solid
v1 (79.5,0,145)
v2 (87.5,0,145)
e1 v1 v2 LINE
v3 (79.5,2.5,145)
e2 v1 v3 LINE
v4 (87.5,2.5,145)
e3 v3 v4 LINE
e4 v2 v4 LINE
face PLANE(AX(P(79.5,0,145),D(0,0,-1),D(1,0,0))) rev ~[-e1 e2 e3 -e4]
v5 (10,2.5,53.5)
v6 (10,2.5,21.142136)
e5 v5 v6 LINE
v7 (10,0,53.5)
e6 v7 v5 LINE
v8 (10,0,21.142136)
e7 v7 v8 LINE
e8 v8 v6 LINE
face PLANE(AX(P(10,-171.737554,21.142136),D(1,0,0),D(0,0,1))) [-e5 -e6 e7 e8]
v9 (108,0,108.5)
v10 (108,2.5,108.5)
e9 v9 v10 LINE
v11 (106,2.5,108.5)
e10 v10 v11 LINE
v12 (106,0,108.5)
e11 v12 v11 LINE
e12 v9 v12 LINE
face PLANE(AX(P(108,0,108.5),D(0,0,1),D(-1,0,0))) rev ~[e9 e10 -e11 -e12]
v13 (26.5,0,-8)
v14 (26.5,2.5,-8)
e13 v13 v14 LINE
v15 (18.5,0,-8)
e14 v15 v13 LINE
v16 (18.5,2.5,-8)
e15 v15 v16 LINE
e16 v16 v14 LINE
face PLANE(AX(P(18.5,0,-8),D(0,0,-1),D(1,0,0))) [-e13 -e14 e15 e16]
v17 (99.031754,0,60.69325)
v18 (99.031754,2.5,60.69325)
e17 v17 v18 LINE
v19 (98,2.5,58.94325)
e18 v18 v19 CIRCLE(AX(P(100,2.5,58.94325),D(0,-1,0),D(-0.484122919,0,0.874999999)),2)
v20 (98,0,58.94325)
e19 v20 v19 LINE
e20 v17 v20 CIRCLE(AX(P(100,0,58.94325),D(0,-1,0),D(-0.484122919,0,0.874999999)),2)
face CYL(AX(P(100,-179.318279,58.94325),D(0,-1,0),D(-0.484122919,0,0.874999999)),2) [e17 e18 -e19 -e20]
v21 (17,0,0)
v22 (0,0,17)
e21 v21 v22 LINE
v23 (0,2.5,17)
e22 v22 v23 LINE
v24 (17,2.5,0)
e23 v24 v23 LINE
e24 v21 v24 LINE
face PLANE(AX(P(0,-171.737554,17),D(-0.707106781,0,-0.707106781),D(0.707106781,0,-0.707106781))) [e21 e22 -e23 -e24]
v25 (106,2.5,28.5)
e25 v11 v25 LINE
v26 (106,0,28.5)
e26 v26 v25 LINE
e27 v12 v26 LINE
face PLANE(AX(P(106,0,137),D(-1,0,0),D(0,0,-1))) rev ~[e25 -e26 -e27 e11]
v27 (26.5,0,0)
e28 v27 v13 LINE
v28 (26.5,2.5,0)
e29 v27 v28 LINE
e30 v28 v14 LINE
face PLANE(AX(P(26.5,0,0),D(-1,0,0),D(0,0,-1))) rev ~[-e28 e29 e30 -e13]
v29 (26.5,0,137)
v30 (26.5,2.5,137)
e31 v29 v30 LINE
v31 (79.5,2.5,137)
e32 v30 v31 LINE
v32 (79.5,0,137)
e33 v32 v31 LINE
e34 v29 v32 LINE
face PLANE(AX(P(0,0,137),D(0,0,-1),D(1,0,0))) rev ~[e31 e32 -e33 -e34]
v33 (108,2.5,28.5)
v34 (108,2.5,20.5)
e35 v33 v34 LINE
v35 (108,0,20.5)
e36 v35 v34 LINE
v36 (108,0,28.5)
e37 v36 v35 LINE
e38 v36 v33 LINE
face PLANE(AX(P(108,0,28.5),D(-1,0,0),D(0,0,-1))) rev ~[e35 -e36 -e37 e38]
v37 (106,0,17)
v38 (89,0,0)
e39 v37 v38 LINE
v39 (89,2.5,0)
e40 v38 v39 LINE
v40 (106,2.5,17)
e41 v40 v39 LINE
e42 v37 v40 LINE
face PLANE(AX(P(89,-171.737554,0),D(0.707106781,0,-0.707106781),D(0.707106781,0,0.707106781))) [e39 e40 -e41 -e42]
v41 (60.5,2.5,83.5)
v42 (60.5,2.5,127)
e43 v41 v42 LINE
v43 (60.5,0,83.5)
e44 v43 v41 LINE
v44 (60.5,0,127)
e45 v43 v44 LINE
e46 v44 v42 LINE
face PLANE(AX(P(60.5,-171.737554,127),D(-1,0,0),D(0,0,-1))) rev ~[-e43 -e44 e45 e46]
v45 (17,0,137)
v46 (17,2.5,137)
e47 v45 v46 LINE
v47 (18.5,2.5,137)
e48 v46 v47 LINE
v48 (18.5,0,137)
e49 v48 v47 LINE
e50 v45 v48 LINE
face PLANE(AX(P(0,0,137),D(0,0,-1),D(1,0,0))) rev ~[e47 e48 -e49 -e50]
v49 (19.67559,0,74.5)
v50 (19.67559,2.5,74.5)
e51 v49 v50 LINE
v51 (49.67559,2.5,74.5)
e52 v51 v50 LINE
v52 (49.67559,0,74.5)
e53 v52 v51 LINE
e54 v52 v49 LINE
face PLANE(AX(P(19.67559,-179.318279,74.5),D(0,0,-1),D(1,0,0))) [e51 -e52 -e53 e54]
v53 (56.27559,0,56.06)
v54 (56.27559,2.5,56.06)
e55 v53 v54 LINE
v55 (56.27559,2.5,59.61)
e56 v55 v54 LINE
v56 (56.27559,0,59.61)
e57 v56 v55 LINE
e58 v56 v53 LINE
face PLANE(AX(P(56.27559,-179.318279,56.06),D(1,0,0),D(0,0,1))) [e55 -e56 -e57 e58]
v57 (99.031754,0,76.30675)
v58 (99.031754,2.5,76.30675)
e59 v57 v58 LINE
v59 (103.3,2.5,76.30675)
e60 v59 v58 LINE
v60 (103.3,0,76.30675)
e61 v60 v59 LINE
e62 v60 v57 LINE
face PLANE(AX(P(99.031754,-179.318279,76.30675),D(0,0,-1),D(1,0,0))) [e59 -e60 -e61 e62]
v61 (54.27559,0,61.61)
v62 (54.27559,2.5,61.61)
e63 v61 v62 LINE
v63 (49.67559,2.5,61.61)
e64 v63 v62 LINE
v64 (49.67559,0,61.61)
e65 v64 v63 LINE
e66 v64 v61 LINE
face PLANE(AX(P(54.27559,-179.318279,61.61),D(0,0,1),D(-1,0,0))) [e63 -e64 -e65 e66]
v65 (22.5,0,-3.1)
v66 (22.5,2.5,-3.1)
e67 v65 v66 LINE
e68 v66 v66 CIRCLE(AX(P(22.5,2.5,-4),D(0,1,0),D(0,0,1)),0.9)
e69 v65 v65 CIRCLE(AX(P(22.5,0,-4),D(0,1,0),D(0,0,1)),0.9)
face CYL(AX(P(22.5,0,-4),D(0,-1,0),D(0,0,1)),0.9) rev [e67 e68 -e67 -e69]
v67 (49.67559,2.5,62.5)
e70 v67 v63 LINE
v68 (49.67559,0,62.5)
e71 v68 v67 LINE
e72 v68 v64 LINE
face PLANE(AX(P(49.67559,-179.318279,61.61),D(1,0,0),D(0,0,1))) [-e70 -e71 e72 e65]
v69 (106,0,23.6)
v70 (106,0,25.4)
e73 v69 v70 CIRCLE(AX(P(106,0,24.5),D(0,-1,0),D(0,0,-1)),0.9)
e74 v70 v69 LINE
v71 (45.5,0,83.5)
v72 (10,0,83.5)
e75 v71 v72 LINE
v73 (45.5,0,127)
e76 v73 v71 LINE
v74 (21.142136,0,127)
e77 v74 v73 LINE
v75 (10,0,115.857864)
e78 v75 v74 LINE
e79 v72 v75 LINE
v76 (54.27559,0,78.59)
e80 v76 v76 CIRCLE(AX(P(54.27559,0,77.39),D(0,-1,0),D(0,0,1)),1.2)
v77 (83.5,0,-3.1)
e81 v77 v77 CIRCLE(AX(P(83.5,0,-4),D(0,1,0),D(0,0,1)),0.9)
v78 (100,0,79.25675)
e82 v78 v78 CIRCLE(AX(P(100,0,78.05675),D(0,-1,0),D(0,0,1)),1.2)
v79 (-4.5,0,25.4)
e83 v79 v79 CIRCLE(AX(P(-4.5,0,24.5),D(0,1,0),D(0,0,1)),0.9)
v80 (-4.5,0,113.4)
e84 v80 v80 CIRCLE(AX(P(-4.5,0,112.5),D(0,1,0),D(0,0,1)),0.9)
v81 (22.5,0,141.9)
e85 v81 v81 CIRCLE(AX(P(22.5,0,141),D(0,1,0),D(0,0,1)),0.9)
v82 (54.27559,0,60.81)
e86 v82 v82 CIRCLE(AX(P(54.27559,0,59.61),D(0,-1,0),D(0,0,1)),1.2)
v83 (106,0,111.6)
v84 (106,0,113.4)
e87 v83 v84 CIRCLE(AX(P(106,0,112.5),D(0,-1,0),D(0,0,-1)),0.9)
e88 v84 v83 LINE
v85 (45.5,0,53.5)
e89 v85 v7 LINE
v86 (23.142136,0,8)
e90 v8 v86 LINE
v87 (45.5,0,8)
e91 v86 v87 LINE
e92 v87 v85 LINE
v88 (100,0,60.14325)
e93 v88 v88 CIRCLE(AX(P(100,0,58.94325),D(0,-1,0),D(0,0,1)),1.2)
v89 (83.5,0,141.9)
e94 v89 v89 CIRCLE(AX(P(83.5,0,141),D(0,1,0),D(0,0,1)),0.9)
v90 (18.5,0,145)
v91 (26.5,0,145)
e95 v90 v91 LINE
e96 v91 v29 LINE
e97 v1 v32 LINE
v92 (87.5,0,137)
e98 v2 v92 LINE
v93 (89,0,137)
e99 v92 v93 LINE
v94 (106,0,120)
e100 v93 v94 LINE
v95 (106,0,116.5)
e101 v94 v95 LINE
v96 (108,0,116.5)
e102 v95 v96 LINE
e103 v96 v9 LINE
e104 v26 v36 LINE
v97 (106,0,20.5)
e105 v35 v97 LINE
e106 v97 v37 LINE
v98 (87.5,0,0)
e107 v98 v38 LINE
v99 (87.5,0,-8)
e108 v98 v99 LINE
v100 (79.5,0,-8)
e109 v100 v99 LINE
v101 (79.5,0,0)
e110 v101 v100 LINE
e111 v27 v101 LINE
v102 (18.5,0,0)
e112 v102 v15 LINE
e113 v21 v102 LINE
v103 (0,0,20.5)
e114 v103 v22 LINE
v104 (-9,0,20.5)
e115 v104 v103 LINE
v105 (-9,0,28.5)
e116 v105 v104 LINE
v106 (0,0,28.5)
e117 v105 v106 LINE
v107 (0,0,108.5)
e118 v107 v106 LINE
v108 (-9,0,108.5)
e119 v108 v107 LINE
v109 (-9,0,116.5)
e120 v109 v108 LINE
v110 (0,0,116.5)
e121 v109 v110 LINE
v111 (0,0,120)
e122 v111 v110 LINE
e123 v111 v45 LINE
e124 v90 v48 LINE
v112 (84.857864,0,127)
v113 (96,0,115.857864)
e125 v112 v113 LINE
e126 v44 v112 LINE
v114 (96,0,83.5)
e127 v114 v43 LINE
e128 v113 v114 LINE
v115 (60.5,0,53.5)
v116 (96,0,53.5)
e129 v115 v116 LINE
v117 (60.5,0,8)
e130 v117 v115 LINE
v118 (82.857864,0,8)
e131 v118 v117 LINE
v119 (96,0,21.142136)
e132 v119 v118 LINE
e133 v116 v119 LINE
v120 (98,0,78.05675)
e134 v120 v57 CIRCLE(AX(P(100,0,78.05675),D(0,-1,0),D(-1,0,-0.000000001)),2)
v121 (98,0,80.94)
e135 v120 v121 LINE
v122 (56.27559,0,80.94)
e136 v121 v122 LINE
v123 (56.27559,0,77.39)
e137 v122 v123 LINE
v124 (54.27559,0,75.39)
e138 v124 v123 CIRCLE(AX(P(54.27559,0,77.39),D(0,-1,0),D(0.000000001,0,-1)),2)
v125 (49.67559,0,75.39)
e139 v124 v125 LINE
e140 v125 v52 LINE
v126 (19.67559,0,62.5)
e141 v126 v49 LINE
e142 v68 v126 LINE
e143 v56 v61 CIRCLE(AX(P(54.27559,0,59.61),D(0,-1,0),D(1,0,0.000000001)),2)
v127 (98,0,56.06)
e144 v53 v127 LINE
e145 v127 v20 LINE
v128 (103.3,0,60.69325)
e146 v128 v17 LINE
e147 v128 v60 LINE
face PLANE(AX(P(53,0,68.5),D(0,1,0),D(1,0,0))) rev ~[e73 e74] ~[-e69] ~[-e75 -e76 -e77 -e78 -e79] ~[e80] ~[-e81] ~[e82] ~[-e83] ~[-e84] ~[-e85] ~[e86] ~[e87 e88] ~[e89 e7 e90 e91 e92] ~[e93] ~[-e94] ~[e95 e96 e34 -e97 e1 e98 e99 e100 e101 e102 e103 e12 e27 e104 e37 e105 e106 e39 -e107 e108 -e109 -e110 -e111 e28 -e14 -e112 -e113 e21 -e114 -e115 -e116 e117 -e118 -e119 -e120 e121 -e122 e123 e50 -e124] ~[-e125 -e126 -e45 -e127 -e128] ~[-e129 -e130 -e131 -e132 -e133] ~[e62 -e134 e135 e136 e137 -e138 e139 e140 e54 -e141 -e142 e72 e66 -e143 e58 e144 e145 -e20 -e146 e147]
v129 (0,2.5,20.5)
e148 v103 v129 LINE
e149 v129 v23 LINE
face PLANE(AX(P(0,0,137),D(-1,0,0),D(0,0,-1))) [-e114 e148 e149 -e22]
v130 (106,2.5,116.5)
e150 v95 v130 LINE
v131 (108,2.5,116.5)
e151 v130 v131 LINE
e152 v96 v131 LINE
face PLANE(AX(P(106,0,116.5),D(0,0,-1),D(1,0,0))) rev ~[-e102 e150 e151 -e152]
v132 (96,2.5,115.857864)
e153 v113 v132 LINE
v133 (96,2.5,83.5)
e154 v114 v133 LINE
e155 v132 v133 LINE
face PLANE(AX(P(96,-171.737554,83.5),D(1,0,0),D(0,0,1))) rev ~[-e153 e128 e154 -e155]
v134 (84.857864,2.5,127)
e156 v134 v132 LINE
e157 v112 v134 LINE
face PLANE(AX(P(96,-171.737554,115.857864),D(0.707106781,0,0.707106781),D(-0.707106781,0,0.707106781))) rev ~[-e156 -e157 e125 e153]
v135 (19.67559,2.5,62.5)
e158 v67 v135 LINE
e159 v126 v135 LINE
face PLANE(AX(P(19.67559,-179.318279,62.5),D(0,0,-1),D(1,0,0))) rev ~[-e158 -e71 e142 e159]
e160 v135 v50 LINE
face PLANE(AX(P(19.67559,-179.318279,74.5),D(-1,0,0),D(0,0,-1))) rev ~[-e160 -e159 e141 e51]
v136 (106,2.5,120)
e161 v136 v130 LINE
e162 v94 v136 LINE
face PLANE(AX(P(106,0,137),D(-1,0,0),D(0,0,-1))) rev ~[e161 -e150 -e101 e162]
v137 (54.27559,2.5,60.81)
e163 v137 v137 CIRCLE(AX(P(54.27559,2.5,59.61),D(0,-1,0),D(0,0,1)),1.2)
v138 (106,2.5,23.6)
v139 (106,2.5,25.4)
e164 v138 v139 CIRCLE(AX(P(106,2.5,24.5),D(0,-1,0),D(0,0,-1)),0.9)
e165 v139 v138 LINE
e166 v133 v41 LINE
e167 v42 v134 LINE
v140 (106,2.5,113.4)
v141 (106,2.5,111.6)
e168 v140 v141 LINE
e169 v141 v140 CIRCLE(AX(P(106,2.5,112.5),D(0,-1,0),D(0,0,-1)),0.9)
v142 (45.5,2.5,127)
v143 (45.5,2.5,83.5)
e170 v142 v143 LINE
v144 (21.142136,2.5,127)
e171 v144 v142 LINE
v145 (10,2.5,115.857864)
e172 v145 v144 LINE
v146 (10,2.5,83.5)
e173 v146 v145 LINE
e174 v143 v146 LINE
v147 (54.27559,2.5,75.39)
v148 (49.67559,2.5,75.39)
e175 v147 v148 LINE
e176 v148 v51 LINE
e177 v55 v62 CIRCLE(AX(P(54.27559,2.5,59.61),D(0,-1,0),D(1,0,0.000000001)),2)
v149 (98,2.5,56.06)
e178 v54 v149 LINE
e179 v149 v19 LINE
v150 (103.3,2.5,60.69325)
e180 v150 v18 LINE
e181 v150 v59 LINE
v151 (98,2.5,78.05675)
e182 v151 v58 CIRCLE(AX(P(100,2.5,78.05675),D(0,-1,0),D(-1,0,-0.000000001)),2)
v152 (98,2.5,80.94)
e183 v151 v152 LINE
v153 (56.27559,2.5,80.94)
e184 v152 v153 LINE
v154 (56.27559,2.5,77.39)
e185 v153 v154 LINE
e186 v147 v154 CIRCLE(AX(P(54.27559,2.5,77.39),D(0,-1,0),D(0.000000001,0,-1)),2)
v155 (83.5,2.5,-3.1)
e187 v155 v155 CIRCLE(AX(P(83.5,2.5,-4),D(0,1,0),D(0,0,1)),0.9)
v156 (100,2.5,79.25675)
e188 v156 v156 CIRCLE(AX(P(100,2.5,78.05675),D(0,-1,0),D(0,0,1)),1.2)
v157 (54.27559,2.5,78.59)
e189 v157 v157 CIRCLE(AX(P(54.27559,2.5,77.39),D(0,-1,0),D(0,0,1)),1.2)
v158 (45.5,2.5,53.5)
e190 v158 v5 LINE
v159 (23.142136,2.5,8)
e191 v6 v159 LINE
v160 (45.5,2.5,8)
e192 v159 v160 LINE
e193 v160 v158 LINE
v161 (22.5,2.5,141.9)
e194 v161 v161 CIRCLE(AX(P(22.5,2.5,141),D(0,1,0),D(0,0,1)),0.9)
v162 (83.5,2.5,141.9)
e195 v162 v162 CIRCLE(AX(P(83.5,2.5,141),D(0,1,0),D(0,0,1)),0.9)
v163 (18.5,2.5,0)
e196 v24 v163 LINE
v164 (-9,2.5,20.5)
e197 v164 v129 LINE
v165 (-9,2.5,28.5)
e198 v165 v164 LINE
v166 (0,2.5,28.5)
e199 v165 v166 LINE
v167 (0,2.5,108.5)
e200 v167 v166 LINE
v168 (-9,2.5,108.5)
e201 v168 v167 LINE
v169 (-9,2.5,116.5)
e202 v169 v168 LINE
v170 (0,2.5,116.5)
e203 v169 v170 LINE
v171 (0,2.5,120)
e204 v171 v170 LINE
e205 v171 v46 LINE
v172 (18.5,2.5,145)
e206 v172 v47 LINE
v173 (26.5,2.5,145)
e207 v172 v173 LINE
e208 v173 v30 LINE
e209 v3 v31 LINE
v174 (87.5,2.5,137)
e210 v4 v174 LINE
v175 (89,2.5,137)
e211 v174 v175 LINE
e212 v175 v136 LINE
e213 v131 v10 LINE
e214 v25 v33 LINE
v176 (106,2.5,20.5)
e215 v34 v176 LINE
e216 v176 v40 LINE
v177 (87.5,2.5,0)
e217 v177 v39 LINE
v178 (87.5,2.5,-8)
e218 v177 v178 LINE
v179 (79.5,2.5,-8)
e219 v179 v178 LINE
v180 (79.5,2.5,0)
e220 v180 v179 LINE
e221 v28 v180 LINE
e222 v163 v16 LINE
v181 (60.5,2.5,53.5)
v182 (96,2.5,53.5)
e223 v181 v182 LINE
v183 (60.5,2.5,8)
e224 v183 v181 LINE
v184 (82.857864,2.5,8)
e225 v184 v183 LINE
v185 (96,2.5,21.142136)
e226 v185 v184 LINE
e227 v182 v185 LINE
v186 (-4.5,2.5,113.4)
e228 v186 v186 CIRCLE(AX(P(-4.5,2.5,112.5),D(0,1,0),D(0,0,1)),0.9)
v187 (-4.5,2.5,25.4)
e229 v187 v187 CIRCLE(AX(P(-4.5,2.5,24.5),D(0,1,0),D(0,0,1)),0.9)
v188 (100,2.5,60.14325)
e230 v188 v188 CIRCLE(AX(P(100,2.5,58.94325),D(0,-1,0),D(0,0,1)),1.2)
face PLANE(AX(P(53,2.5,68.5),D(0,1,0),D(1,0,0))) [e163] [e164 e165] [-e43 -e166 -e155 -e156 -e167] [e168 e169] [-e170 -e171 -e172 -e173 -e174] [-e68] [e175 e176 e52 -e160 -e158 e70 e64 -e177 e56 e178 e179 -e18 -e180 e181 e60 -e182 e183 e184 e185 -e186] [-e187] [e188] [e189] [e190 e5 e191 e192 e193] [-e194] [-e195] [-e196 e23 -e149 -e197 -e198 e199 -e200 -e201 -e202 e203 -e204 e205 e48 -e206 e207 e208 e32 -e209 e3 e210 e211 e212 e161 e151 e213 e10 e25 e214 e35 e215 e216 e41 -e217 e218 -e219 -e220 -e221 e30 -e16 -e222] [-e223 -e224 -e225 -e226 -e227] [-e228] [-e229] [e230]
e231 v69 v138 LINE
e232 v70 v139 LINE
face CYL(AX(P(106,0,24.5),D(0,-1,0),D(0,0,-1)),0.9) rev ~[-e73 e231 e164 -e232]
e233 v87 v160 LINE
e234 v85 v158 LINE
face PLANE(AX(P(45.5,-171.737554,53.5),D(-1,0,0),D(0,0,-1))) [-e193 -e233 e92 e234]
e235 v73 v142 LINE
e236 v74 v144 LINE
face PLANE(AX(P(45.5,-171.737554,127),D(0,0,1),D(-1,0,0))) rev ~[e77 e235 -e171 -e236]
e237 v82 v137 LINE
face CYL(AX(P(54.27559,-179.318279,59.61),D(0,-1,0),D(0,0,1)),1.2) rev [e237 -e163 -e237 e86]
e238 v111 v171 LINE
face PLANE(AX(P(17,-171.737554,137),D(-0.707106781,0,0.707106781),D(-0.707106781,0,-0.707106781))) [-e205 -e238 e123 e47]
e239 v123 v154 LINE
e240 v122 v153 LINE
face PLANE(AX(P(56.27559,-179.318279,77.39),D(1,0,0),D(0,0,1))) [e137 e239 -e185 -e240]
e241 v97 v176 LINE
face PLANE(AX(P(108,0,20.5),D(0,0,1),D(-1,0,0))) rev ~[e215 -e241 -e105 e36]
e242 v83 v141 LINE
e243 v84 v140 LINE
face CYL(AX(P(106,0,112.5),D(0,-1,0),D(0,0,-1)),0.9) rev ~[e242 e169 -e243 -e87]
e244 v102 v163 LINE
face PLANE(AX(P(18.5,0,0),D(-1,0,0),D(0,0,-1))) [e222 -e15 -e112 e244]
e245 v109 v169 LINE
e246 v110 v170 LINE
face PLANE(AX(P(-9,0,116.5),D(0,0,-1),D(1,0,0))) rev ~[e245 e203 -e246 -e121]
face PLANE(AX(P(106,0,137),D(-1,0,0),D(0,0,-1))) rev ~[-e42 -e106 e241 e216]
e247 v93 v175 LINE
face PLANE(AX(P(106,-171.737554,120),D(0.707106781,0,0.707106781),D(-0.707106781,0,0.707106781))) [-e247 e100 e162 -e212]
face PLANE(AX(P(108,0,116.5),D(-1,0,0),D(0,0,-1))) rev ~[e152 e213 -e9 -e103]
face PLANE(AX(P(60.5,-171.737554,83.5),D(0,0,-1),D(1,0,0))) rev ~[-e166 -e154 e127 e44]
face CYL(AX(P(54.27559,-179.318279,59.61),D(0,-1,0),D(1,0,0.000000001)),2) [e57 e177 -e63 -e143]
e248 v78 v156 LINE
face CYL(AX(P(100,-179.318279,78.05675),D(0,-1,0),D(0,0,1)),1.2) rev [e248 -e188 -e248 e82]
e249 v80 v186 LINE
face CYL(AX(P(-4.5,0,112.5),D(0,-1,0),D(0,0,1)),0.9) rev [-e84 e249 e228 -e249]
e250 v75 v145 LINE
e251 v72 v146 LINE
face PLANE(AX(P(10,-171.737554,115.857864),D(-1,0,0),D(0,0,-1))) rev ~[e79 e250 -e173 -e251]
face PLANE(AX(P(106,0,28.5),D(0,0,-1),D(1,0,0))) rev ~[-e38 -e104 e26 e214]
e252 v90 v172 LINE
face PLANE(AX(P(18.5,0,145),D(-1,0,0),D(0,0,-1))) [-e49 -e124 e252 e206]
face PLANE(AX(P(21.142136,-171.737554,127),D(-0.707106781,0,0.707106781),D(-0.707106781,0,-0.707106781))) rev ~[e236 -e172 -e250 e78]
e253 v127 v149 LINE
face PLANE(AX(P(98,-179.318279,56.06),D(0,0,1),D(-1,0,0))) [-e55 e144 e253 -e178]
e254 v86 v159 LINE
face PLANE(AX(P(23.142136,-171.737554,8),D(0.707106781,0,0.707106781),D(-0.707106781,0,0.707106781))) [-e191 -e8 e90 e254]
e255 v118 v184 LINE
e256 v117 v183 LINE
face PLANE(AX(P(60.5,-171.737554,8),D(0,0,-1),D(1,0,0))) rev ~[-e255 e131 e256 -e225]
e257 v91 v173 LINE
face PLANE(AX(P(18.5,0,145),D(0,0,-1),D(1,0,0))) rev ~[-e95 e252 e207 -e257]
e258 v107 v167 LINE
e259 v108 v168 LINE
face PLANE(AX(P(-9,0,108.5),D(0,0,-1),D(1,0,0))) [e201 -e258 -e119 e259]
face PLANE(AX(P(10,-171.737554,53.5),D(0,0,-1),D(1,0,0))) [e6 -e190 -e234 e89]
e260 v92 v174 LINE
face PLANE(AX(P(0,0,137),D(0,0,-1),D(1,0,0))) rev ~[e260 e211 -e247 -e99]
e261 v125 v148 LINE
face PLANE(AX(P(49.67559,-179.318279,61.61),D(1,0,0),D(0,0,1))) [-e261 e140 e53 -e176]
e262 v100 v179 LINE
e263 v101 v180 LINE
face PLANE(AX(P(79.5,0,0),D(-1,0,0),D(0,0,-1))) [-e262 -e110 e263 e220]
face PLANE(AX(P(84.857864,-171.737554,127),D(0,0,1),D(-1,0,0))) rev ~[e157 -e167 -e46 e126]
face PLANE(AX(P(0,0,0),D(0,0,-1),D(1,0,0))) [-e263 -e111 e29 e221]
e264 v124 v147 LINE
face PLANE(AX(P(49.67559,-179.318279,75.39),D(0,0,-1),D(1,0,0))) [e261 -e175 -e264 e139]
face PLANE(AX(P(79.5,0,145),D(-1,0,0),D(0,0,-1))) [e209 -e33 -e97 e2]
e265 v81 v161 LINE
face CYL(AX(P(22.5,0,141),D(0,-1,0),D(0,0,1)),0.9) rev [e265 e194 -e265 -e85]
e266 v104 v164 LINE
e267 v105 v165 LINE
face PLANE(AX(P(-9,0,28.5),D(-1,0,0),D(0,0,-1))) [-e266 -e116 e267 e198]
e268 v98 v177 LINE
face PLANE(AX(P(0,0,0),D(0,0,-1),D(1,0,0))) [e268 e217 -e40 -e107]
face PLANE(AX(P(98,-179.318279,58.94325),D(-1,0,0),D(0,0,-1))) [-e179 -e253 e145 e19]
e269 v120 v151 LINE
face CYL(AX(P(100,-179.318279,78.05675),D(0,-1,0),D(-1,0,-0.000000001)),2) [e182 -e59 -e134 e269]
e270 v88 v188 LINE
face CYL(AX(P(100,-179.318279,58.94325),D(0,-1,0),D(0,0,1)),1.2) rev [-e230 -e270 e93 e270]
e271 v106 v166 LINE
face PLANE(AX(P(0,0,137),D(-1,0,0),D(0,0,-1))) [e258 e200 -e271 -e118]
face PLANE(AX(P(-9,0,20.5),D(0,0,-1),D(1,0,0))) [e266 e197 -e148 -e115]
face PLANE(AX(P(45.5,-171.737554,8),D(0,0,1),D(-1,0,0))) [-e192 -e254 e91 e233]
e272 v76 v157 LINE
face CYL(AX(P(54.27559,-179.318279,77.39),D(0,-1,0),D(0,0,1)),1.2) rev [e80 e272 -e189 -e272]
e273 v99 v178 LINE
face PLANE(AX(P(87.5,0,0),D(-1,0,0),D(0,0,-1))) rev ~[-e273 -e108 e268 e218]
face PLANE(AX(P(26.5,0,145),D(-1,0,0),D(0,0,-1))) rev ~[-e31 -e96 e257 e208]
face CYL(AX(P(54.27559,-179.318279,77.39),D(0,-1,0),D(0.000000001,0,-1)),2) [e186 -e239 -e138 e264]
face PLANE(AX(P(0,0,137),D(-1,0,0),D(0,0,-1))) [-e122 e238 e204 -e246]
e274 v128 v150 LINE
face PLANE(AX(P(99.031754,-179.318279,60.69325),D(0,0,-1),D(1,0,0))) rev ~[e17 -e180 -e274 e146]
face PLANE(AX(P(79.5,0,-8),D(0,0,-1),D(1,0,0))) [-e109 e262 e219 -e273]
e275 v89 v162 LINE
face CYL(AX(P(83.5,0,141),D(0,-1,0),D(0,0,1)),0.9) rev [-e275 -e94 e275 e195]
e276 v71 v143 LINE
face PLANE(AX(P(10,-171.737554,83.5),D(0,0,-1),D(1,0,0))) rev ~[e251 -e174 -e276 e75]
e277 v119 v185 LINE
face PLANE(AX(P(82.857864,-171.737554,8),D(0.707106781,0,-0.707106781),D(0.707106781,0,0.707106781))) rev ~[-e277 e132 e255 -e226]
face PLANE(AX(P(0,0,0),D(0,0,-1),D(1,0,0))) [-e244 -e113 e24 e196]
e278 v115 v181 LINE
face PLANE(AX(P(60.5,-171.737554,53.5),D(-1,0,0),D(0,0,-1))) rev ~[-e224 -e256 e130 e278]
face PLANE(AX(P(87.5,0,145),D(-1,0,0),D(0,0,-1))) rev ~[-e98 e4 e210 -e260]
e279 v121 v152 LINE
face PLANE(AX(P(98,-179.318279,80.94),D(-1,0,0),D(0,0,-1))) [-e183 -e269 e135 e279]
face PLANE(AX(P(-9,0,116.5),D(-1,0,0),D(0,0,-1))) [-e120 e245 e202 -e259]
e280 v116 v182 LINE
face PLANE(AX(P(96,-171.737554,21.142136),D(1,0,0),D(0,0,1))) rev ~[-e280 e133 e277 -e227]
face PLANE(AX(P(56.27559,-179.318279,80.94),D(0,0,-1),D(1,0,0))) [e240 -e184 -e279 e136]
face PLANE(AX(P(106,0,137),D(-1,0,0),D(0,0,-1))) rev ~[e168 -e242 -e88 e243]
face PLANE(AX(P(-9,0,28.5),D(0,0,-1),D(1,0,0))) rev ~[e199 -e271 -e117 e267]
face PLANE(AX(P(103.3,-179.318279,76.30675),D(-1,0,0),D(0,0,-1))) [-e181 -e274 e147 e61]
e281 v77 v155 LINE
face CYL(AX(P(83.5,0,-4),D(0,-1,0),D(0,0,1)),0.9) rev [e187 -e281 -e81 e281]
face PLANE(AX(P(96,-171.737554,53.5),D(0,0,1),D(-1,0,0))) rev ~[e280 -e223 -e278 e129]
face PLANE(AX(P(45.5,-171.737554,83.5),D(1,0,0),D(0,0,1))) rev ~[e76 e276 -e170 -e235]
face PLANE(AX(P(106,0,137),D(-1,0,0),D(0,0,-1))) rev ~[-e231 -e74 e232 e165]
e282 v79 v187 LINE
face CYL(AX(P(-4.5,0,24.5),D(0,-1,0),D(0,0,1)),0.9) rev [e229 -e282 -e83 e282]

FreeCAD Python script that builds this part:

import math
import FreeCAD as App
import Part
import Sketcher

V = App.Vector
Q = App.Units.Quantity


def add_polygon(sketch, points):
    """Adds a closed chain of lines whose ends are joined by coincident constraints."""
    first, n = sketch.GeometryCount, len(points)
    for a, b in zip(points, points[1:] + points[:1]):
        sketch.addGeometry(Part.LineSegment(App.Vector(*a, 0), App.Vector(*b, 0)), False)
    for i in range(n):
        sketch.addConstraint(Sketcher.Constraint("Coincident", first + i, 2, first + (i + 1) % n, 1))

doc = App.newDocument("Part")
body = doc.addObject("PartDesign::Body", "Body")

# Sketch on XZ plane
sketch1 = body.newObject("Sketcher::SketchObject", "Sketch")
sketch1.AttachmentSupport = (doc.getObject("XZ_Plane"), [""])
sketch1.MapMode = "FlatFace"
add_polygon(sketch1, [(0, 0), (0, 137), (106, 137), (106, 0)])  # lines 0-3
sketch1.addConstraint(Sketcher.Constraint("Vertical", 0))
sketch1.addConstraint(Sketcher.Constraint("Horizontal", 1))
sketch1.addConstraint(Sketcher.Constraint("Vertical", 2))
sketch1.addConstraint(Sketcher.Constraint("Horizontal", 3))
sketch1.addConstraint(Sketcher.Constraint("Coincident", 3, 2, -1, 1))
sketch1.addConstraint(Sketcher.Constraint("DistanceX", 1, 1, 1, 2, Q("106 mm")))
sketch1.addConstraint(Sketcher.Constraint("DistanceY", 0, 1, 0, 2, Q("137 mm")))
pad1 = body.newObject("PartDesign::Pad", "Pad")
pad1.Profile = sketch1
pad1.Length = 2.5
pad1.Reversed = True

# Sketch on XZ plane
sketch2 = body.newObject("Sketcher::SketchObject", "Sketch001")
sketch2.AttachmentSupport = (doc.getObject("XZ_Plane"), [""])
sketch2.MapMode = "FlatFace"
sketch2.AttachmentOffset = App.Placement(V(0, 0, -2.5), App.Rotation())
add_polygon(sketch2, [(96, 84), (60, 84), (60, 127), (85, 127), (96, 116)])  # lines 0-4
add_polygon(sketch2, [(106, 120), (89, 137), (106, 137)])  # lines 5-7
add_polygon(sketch2, [(17, 137), (0, 120), (0, 137)])  # lines 8-10
add_polygon(sketch2, [(21, 127), (46, 127), (46, 84), (10, 84), (10, 116)])  # lines 11-15
add_polygon(sketch2, [(10, 54), (46, 54), (46, 8), (23, 8), (10, 21)])  # lines 16-20
add_polygon(sketch2, [(60, 8), (60, 54), (96, 54), (96, 21), (83, 8)])  # lines 21-25
add_polygon(sketch2, [(106, 0), (89, 0), (106, 17)])  # lines 26-28
add_polygon(sketch2, [(0, 0), (0, 17), (17, 0)])  # lines 29-31
sketch2.addConstraint(Sketcher.Constraint("Horizontal", 0))
sketch2.addConstraint(Sketcher.Constraint("Vertical", 1))
sketch2.addConstraint(Sketcher.Constraint("Horizontal", 2))
sketch2.addConstraint(Sketcher.Constraint("Vertical", 4))
sketch2.addConstraint(Sketcher.Constraint("Horizontal", 6))
sketch2.addConstraint(Sketcher.Constraint("Vertical", 7))
sketch2.addConstraint(Sketcher.Constraint("Vertical", 9))
sketch2.addConstraint(Sketcher.Constraint("Horizontal", 10))
sketch2.addConstraint(Sketcher.Constraint("Horizontal", 11))
sketch2.addConstraint(Sketcher.Constraint("Vertical", 12))
sketch2.addConstraint(Sketcher.Constraint("Horizontal", 13))
sketch2.addConstraint(Sketcher.Constraint("Vertical", 14))
sketch2.addConstraint(Sketcher.Constraint("Horizontal", 16))
sketch2.addConstraint(Sketcher.Constraint("Vertical", 17))
sketch2.addConstraint(Sketcher.Constraint("Horizontal", 18))
sketch2.addConstraint(Sketcher.Constraint("Vertical", 20))
sketch2.addConstraint(Sketcher.Constraint("Vertical", 21))
sketch2.addConstraint(Sketcher.Constraint("Horizontal", 22))
sketch2.addConstraint(Sketcher.Constraint("Vertical", 23))
sketch2.addConstraint(Sketcher.Constraint("Horizontal", 25))
sketch2.addConstraint(Sketcher.Constraint("Horizontal", 26))
sketch2.addConstraint(Sketcher.Constraint("Vertical", 28))
sketch2.addConstraint(Sketcher.Constraint("Vertical", 29))
sketch2.addConstraint(Sketcher.Constraint("Horizontal", 31))
sketch2.addConstraint(Sketcher.Constraint("Coincident", 31, 2, -1, 1))
sketch2.addConstraint(Sketcher.Constraint("PointOnObject", 8, 2, -2))
sketch2.addConstraint(Sketcher.Constraint("PointOnObject", 26, 2, -1))
sketch2.addConstraint(Sketcher.Constraint("Parallel", 3, 5))
sketch2.addConstraint(Sketcher.Constraint("Perpendicular", 5, 8))
sketch2.addConstraint(Sketcher.Constraint("Parallel", 8, 15))
sketch2.addConstraint(Sketcher.Constraint("Perpendicular", 15, 19))
sketch2.addConstraint(Sketcher.Constraint("Perpendicular", 19, 24))
sketch2.addConstraint(Sketcher.Constraint("Parallel", 24, 27))
sketch2.addConstraint(Sketcher.Constraint("Perpendicular", 27, 30))
sketch2.addConstraint(Sketcher.Constraint("Horizontal", 7, 2, 8, 2))
sketch2.addConstraint(Sketcher.Constraint("Horizontal", 6, 2, 9, 2))
sketch2.addConstraint(Sketcher.Constraint("Horizontal", 2, 2, 11, 2))
sketch2.addConstraint(Sketcher.Constraint("Horizontal", 4, 2, 12, 2))
sketch2.addConstraint(Sketcher.Constraint("Horizontal", 3, 2, 14, 2))
sketch2.addConstraint(Sketcher.Constraint("Horizontal", 20, 2, 21, 2))
sketch2.addConstraint(Sketcher.Constraint("Horizontal", 19, 2, 23, 2))
sketch2.addConstraint(Sketcher.Constraint("Horizontal", 18, 2, 24, 2))
sketch2.addConstraint(Sketcher.Constraint("Horizontal", 27, 2, 29, 2))
sketch2.addConstraint(Sketcher.Constraint("Vertical", 12, 2, 16, 2))
sketch2.addConstraint(Sketcher.Constraint("Vertical", 14, 2, 19, 2))
sketch2.addConstraint(Sketcher.Constraint("Vertical", 1, 2, 21, 2))
sketch2.addConstraint(Sketcher.Constraint("Vertical", 4, 2, 22, 2))
sketch2.addConstraint(Sketcher.Constraint("Vertical", 5, 2, 26, 2))
sketch2.addConstraint(Sketcher.Constraint("Vertical", 7, 2, 27, 2))
sketch2.addConstraint(Sketcher.Constraint("Vertical", 10, 2, 30, 2))
sketch2.addConstraint(Sketcher.Constraint("Equal", 2, 11))
sketch2.addConstraint(Sketcher.Constraint("Equal", 14, 20))
sketch2.addConstraint(Sketcher.Constraint("DistanceX", 6, 1, 6, 2, Q("17 mm")))
sketch2.addConstraint(Sketcher.Constraint("DistanceX", 0, 2, 0, 1, Q("35.5 mm")))
sketch2.addConstraint(Sketcher.Constraint("DistanceY", 1, 1, 1, 2, Q("43.5 mm")))
sketch2.addConstraint(Sketcher.Constraint("DistanceY", 17, 2, 17, 1, Q("45.5 mm")))
sketch2.addConstraint(Sketcher.Constraint("DistanceY", -1, 1, 1, 2, Q("127 mm")))
sketch2.addConstraint(Sketcher.Constraint("DistanceX", -1, 1, 3, 2, Q("96 mm")))
sketch2.addConstraint(Sketcher.Constraint("DistanceX", -1, 1, 5, 2, Q("89 mm")))
sketch2.addConstraint(Sketcher.Constraint("DistanceY", -1, 1, 5, 2, Q("137 mm")))
sketch2.addConstraint(Sketcher.Constraint("DistanceX", -1, 1, 13, 2, Q("10 mm")))
sketch2.addConstraint(Sketcher.Constraint("DistanceY", -1, 1, 17, 2, Q("8 mm")))
sketch2.addConstraint(Sketcher.Constraint("Distance", 3, Q("15.757359 mm")))
pocket1 = body.newObject("PartDesign::Pocket", "Pocket")
pocket1.Profile = sketch2
pocket1.Type = "ThroughAll"
pocket1.Midplane = True

# Sketch on XZ plane
sketch3 = body.newObject("Sketcher::SketchObject", "Sketch002")
sketch3.AttachmentSupport = (doc.getObject("XZ_Plane"), [""])
sketch3.MapMode = "FlatFace"
add_polygon(sketch3, [(18.5, 137), (18.5, 145), (26.5, 145), (26.5, 137)])  # lines 0-3
sketch3.addGeometry(Part.Circle(V(22.5, 141, 0), V(0, 0, 1), 0.9), False)  # 4
add_polygon(sketch3, [(79.5, 137), (79.5, 145), (87.5, 145), (87.5, 137)])  # lines 5-8
sketch3.addGeometry(Part.Circle(V(83.5, 141, 0), V(0, 0, 1), 0.9), False)  # 9
add_polygon(sketch3, [(79.5, -8), (79.5, 0), (87.5, 0), (87.5, -8)])  # lines 10-13
sketch3.addGeometry(Part.Circle(V(83.5, -4, 0), V(0, 0, 1), 0.9), False)  # 14
add_polygon(sketch3, [(18.5, -8), (18.5, 0), (26.5, 0), (26.5, -8)])  # lines 15-18
sketch3.addGeometry(Part.Circle(V(22.5, -4, 0), V(0, 0, 1), 0.9), False)  # 19
add_polygon(sketch3, [(-9, 108.5), (-9, 116.5), (0, 116.5), (0, 108.5)])  # lines 20-23
sketch3.addGeometry(Part.Circle(V(-4.5, 112.5, 0), V(0, 0, 1), 0.9), False)  # 24
add_polygon(sketch3, [(-9, 20.5), (-9, 28.5), (0, 28.5), (0, 20.5)])  # lines 25-28
sketch3.addGeometry(Part.Circle(V(-4.5, 24.5, 0), V(0, 0, 1), 0.9), False)  # 29
sketch3.addGeometry(Part.LineSegment(V(106, 113.4, 0), V(106, 116.5, 0)), False)  # 30
sketch3.addGeometry(Part.LineSegment(V(106, 116.5, 0), V(108, 116.5, 0)), False)  # 31
sketch3.addGeometry(Part.LineSegment(V(108, 116.5, 0), V(108, 108.5, 0)), False)  # 32
sketch3.addGeometry(Part.LineSegment(V(108, 108.5, 0), V(106, 108.5, 0)), False)  # 33
sketch3.addGeometry(Part.LineSegment(V(106, 108.5, 0), V(106, 111.6, 0)), False)  # 34
sketch3.addGeometry(Part.ArcOfCircle(Part.Circle(V(106, 112.5, 0), V(0, 0, 1), 0.9), math.radians(-90), math.radians(90)), False)  # 35
sketch3.addGeometry(Part.LineSegment(V(106, 25.4, 0), V(106, 28.5, 0)), False)  # 36
sketch3.addGeometry(Part.LineSegment(V(106, 28.5, 0), V(108, 28.5, 0)), False)  # 37
sketch3.addGeometry(Part.LineSegment(V(108, 28.5, 0), V(108, 20.5, 0)), False)  # 38
sketch3.addGeometry(Part.LineSegment(V(108, 20.5, 0), V(106, 20.5, 0)), False)  # 39
sketch3.addGeometry(Part.LineSegment(V(106, 20.5, 0), V(106, 23.6, 0)), False)  # 40
sketch3.addGeometry(Part.ArcOfCircle(Part.Circle(V(106, 24.5, 0), V(0, 0, 1), 0.9), math.radians(-90), math.radians(90)), False)  # 41
sketch3.addConstraint(Sketcher.Constraint("Coincident", 30, 2, 31, 1))
sketch3.addConstraint(Sketcher.Constraint("Coincident", 31, 2, 32, 1))
sketch3.addConstraint(Sketcher.Constraint("Coincident", 32, 2, 33, 1))
sketch3.addConstraint(Sketcher.Constraint("Coincident", 33, 2, 34, 1))
sketch3.addConstraint(Sketcher.Constraint("Coincident", 34, 2, 35, 1))
sketch3.addConstraint(Sketcher.Constraint("Coincident", 35, 2, 30, 1))
sketch3.addConstraint(Sketcher.Constraint("Coincident", 36, 2, 37, 1))
sketch3.addConstraint(Sketcher.Constraint("Coincident", 37, 2, 38, 1))
sketch3.addConstraint(Sketcher.Constraint("Coincident", 38, 2, 39, 1))
sketch3.addConstraint(Sketcher.Constraint("Coincident", 39, 2, 40, 1))
sketch3.addConstraint(Sketcher.Constraint("Coincident", 40, 2, 41, 1))
sketch3.addConstraint(Sketcher.Constraint("Coincident", 41, 2, 36, 1))
sketch3.addConstraint(Sketcher.Constraint("Vertical", 0))
sketch3.addConstraint(Sketcher.Constraint("Horizontal", 1))
sketch3.addConstraint(Sketcher.Constraint("Vertical", 2))
sketch3.addConstraint(Sketcher.Constraint("Horizontal", 3))
sketch3.addConstraint(Sketcher.Constraint("Vertical", 5))
sketch3.addConstraint(Sketcher.Constraint("Horizontal", 6))
sketch3.addConstraint(Sketcher.Constraint("Vertical", 7))
sketch3.addConstraint(Sketcher.Constraint("Horizontal", 8))
sketch3.addConstraint(Sketcher.Constraint("Vertical", 10))
sketch3.addConstraint(Sketcher.Constraint("Horizontal", 11))
sketch3.addConstraint(Sketcher.Constraint("Vertical", 12))
sketch3.addConstraint(Sketcher.Constraint("Horizontal", 13))
sketch3.addConstraint(Sketcher.Constraint("Vertical", 15))
sketch3.addConstraint(Sketcher.Constraint("Horizontal", 16))
sketch3.addConstraint(Sketcher.Constraint("Vertical", 17))
sketch3.addConstraint(Sketcher.Constraint("Horizontal", 18))
sketch3.addConstraint(Sketcher.Constraint("Vertical", 20))
sketch3.addConstraint(Sketcher.Constraint("Horizontal", 21))
sketch3.addConstraint(Sketcher.Constraint("Vertical", 22))
sketch3.addConstraint(Sketcher.Constraint("Horizontal", 23))
sketch3.addConstraint(Sketcher.Constraint("Vertical", 25))
sketch3.addConstraint(Sketcher.Constraint("Horizontal", 26))
sketch3.addConstraint(Sketcher.Constraint("Vertical", 27))
sketch3.addConstraint(Sketcher.Constraint("Horizontal", 28))
sketch3.addConstraint(Sketcher.Constraint("Vertical", 30))
sketch3.addConstraint(Sketcher.Constraint("Horizontal", 31))
sketch3.addConstraint(Sketcher.Constraint("Vertical", 32))
sketch3.addConstraint(Sketcher.Constraint("Horizontal", 33))
sketch3.addConstraint(Sketcher.Constraint("Vertical", 34))
sketch3.addConstraint(Sketcher.Constraint("Vertical", 36))
sketch3.addConstraint(Sketcher.Constraint("Horizontal", 37))
sketch3.addConstraint(Sketcher.Constraint("Vertical", 38))
sketch3.addConstraint(Sketcher.Constraint("Horizontal", 39))
sketch3.addConstraint(Sketcher.Constraint("Vertical", 40))
sketch3.addConstraint(Sketcher.Constraint("Equal", 4, 9))
sketch3.addConstraint(Sketcher.Constraint("Equal", 9, 14))
sketch3.addConstraint(Sketcher.Constraint("Equal", 14, 19))
sketch3.addConstraint(Sketcher.Constraint("Equal", 19, 24))
sketch3.addConstraint(Sketcher.Constraint("Equal", 24, 29))
sketch3.addConstraint(Sketcher.Constraint("Equal", 29, 35))
sketch3.addConstraint(Sketcher.Constraint("Equal", 35, 41))
sketch3.addConstraint(Sketcher.Constraint("PointOnObject", 10, 2, -1))
sketch3.addConstraint(Sketcher.Constraint("PointOnObject", 15, 2, -1))
sketch3.addConstraint(Sketcher.Constraint("PointOnObject", 21, 2, -2))
sketch3.addConstraint(Sketcher.Constraint("PointOnObject", 26, 2, -2))
sketch3.addConstraint(Sketcher.Constraint("Horizontal", 4, 3, 9, 3))
sketch3.addConstraint(Sketcher.Constraint("Horizontal", 14, 3, 19, 3))
sketch3.addConstraint(Sketcher.Constraint("Horizontal", 24, 3, 35, 3))
sketch3.addConstraint(Sketcher.Constraint("Horizontal", 29, 3, 41, 3))
sketch3.addConstraint(Sketcher.Constraint("Horizontal", 1, 2, 5, 2))
sketch3.addConstraint(Sketcher.Constraint("Horizontal", 3, 2, 7, 2))
sketch3.addConstraint(Sketcher.Constraint("Horizontal", 13, 2, 17, 2))
sketch3.addConstraint(Sketcher.Constraint("Horizontal", 21, 2, 30, 2))
sketch3.addConstraint(Sketcher.Constraint("Horizontal", 23, 2, 32, 2))
sketch3.addConstraint(Sketcher.Constraint("Horizontal", 26, 2, 36, 2))
sketch3.addConstraint(Sketcher.Constraint("Horizontal", 28, 2, 38, 2))
sketch3.addConstraint(Sketcher.Constraint("Vertical", 9, 3, 14, 3))
sketch3.addConstraint(Sketcher.Constraint("Vertical", 4, 3, 19, 3))
sketch3.addConstraint(Sketcher.Constraint("Vertical", 24, 3, 29, 3))
sketch3.addConstraint(Sketcher.Constraint("Vertical", 35, 3, 41, 3))
sketch3.addConstraint(Sketcher.Constraint("Vertical", 8, 2, 10, 2))
sketch3.addConstraint(Sketcher.Constraint("Vertical", 7, 2, 11, 2))
sketch3.addConstraint(Sketcher.Constraint("Vertical", 3, 2, 15, 2))
sketch3.addConstraint(Sketcher.Constraint("Vertical", 2, 2, 16, 2))
sketch3.addConstraint(Sketcher.Constraint("Vertical", 23, 2, 25, 2))
sketch3.addConstraint(Sketcher.Constraint("Vertical", 41, 3, 30, 2))
sketch3.addConstraint(Sketcher.Constraint("Vertical", 30, 2, 33, 2))
sketch3.addConstraint(Sketcher.Constraint("Vertical", 35, 2, 36, 2))
sketch3.addConstraint(Sketcher.Constraint("Vertical", 32, 2, 37, 2))
sketch3.addConstraint(Sketcher.Constraint("Vertical", 36, 2, 39, 2))
sketch3.addConstraint(Sketcher.Constraint("Equal", 3, 6))
sketch3.addConstraint(Sketcher.Constraint("Equal", 18, 0))
sketch3.addConstraint(Sketcher.Constraint("Equal", 7, 10))
sketch3.addConstraint(Sketcher.Constraint("Equal", 17, 20))
sketch3.addConstraint(Sketcher.Constraint("Equal", 22, 25))
sketch3.addConstraint(Sketcher.Constraint("Equal", 30, 34))
sketch3.addConstraint(Sketcher.Constraint("Equal", 34, 36))
sketch3.addConstraint(Sketcher.Constraint("Diameter", 4, Q("1.8 mm")))
sketch3.addConstraint(Sketcher.Constraint("DistanceX", 1, 1, 1, 2, Q("8 mm")))
sketch3.addConstraint(Sketcher.Constraint("DistanceX", 21, 1, 21, 2, Q("9 mm")))
sketch3.addConstraint(Sketcher.Constraint("DistanceX", 31, 1, 31, 2, Q("2 mm")))
sketch3.addConstraint(Sketcher.Constraint("DistanceY", -1, 1, 4, 3, Q("141 mm")))
sketch3.addConstraint(Sketcher.Constraint("DistanceY", 14, 3, -1, 1, Q("4 mm")))
sketch3.addConstraint(Sketcher.Constraint("DistanceX", -1, 1, 35, 3, Q("106 mm")))
sketch3.addConstraint(Sketcher.Constraint("DistanceY", -1, 1, 0, 2, Q("145 mm")))
sketch3.addConstraint(Sketcher.Constraint("DistanceX", 4, 3, 9, 3, Q("61 mm")))
sketch3.addConstraint(Sketcher.Constraint("DistanceX", 24, 3, 4, 3, Q("27 mm")))
sketch3.addConstraint(Sketcher.Constraint("DistanceY", 29, 3, 24, 3, Q("88 mm")))
sketch3.addConstraint(Sketcher.Constraint("DistanceX", 0, 2, 4, 3, Q("4 mm")))
sketch3.addConstraint(Sketcher.Constraint("DistanceX", 5, 2, 9, 3, Q("4 mm")))
sketch3.addConstraint(Sketcher.Constraint("DistanceX", -1, 1, 4, 3, Q("22.5 mm")))
sketch3.addConstraint(Sketcher.Constraint("DistanceY", -1, 1, 24, 3, Q("112.5 mm")))
pad2 = body.newObject("PartDesign::Pad", "Pad001")
pad2.Profile = sketch3
pad2.Length = 2.5
pad2.Reversed = True

# Sketch on XZ plane
sketch4 = body.newObject("Sketcher::SketchObject", "Sketch003")
sketch4.AttachmentSupport = (doc.getObject("XZ_Plane"), [""])
sketch4.MapMode = "FlatFace"
sketch4.AttachmentOffset = App.Placement(V(0, 0, -2.5), App.Rotation())
sketch4.addGeometry(Part.LineSegment(V(56.28, 77.39, 0), V(56.28, 80.94, 0)), False)
sketch4.addGeometry(Part.LineSegment(V(56.28, 80.94, 0), V(98, 80.94, 0)), False)
sketch4.addGeometry(Part.LineSegment(V(98, 80.94, 0), V(98, 78.06, 0)), False)
sketch4.addGeometry(Part.ArcOfCircle(Part.Circle(V(100, 78.06, 0), V(0, 0, 1), 2), math.radians(-180), math.radians(-119)), False)
sketch4.addGeometry(Part.LineSegment(V(99.03, 76.31, 0), V(103.3, 76.31, 0)), False)
sketch4.addGeometry(Part.LineSegment(V(103.3, 76.31, 0), V(103.3, 76.06, 0)), False)
sketch4.addGeometry(Part.LineSegment(V(103.3, 76.06, 0), V(103.3, 60.94, 0)), False)
sketch4.addGeometry(Part.LineSegment(V(103.3, 60.94, 0), V(103.3, 60.69, 0)), False)
sketch4.addGeometry(Part.LineSegment(V(103.3, 60.69, 0), V(99.03, 60.69, 0)), False)
sketch4.addGeometry(Part.ArcOfCircle(Part.Circle(V(100, 58.94, 0), V(0, 0, 1), 2), math.radians(119), math.radians(180)), False)
sketch4.addGeometry(Part.LineSegment(V(98, 58.94, 0), V(98, 56.06, 0)), False)
sketch4.addGeometry(Part.LineSegment(V(98, 56.06, 0), V(56.28, 56.06, 0)), False)
sketch4.addGeometry(Part.LineSegment(V(56.28, 56.06, 0), V(56.28, 59.61, 0)), False)
sketch4.addGeometry(Part.ArcOfCircle(Part.Circle(V(54.28, 59.61, 0), V(0, 0, 1), 2), math.radians(0), math.radians(90)), False)
sketch4.addGeometry(Part.LineSegment(V(54.28, 61.61, 0), V(49.68, 61.61, 0)), False)
sketch4.addGeometry(Part.LineSegment(V(49.68, 61.61, 0), V(49.68, 75.39, 0)), False)
sketch4.addGeometry(Part.LineSegment(V(49.68, 75.39, 0), V(54.28, 75.39, 0)), False)
sketch4.addGeometry(Part.ArcOfCircle(Part.Circle(V(54.28, 77.39, 0), V(0, 0, 1), 2), math.radians(-90), math.radians(0)), False)
sketch4.addGeometry(Part.Circle(V(54.28, 59.61, 0), V(0, 0, 1), 1.2), False)
sketch4.addGeometry(Part.Circle(V(54.28, 77.39, 0), V(0, 0, 1), 1.2), False)
sketch4.addGeometry(Part.Circle(V(100, 78.06, 0), V(0, 0, 1), 1.2), False)
sketch4.addGeometry(Part.Circle(V(100, 58.94, 0), V(0, 0, 1), 1.2), False)
sketch4.addConstraint(Sketcher.Constraint("Coincident", 0, 2, 1, 1))
sketch4.addConstraint(Sketcher.Constraint("Coincident", 1, 2, 2, 1))
sketch4.addConstraint(Sketcher.Constraint("Tangent", 2, 2, 3, 1))
sketch4.addConstraint(Sketcher.Constraint("Coincident", 3, 2, 4, 1))
sketch4.addConstraint(Sketcher.Constraint("Coincident", 4, 2, 5, 1))
sketch4.addConstraint(Sketcher.Constraint("Coincident", 5, 2, 6, 1))
sketch4.addConstraint(Sketcher.Constraint("Coincident", 6, 2, 7, 1))
sketch4.addConstraint(Sketcher.Constraint("Coincident", 7, 2, 8, 1))
sketch4.addConstraint(Sketcher.Constraint("Coincident", 8, 2, 9, 1))
sketch4.addConstraint(Sketcher.Constraint("Tangent", 9, 2, 10, 1))
sketch4.addConstraint(Sketcher.Constraint("Coincident", 10, 2, 11, 1))
sketch4.addConstraint(Sketcher.Constraint("Coincident", 11, 2, 12, 1))
sketch4.addConstraint(Sketcher.Constraint("Tangent", 12, 2, 13, 1))
sketch4.addConstraint(Sketcher.Constraint("Tangent", 13, 2, 14, 1))
sketch4.addConstraint(Sketcher.Constraint("Coincident", 14, 2, 15, 1))
sketch4.addConstraint(Sketcher.Constraint("Coincident", 15, 2, 16, 1))
sketch4.addConstraint(Sketcher.Constraint("Tangent", 16, 2, 17, 1))
sketch4.addConstraint(Sketcher.Constraint("Tangent", 17, 2, 0, 1))
sketch4.addConstraint(Sketcher.Constraint("Vertical", 0))
sketch4.addConstraint(Sketcher.Constraint("Horizontal", 1))
sketch4.addConstraint(Sketcher.Constraint("Vertical", 2))
sketch4.addConstraint(Sketcher.Constraint("Horizontal", 4))
sketch4.addConstraint(Sketcher.Constraint("Vertical", 5))
sketch4.addConstraint(Sketcher.Constraint("Vertical", 6))
sketch4.addConstraint(Sketcher.Constraint("Vertical", 7))
sketch4.addConstraint(Sketcher.Constraint("Horizontal", 8))
sketch4.addConstraint(Sketcher.Constraint("Vertical", 10))
sketch4.addConstraint(Sketcher.Constraint("Horizontal", 11))
sketch4.addConstraint(Sketcher.Constraint("Vertical", 12))
sketch4.addConstraint(Sketcher.Constraint("Horizontal", 14))
sketch4.addConstraint(Sketcher.Constraint("Vertical", 15))
sketch4.addConstraint(Sketcher.Constraint("Horizontal", 16))
sketch4.addConstraint(Sketcher.Constraint("Coincident", 18, 3, 13, 3))
sketch4.addConstraint(Sketcher.Constraint("Coincident", 19, 3, 17, 3))
sketch4.addConstraint(Sketcher.Constraint("Coincident", 20, 3, 3, 3))
sketch4.addConstraint(Sketcher.Constraint("Coincident", 21, 3, 9, 3))
sketch4.addConstraint(Sketcher.Constraint("Equal", 3, 9))
sketch4.addConstraint(Sketcher.Constraint("Equal", 9, 13))
sketch4.addConstraint(Sketcher.Constraint("Equal", 13, 17))
sketch4.addConstraint(Sketcher.Constraint("Equal", 18, 19))
sketch4.addConstraint(Sketcher.Constraint("Equal", 19, 20))
sketch4.addConstraint(Sketcher.Constraint("Equal", 20, 21))
sketch4.addConstraint(Sketcher.Constraint("Vertical", 3, 3, 9, 3))
sketch4.addConstraint(Sketcher.Constraint("Vertical", 13, 3, 17, 3))
sketch4.addConstraint(Sketcher.Constraint("Vertical", 3, 2, 8, 2))
sketch4.addConstraint(Sketcher.Constraint("Equal", 5, 7))
sketch4.addConstraint(Sketcher.Constraint("Equal", 2, 10))
sketch4.addConstraint(Sketcher.Constraint("Equal", 0, 12))
sketch4.addConstraint(Sketcher.Constraint("Radius", 3, Q("2 mm")))
sketch4.addConstraint(Sketcher.Constraint("Diameter", 18, Q("2.4 mm")))
sketch4.addConstraint(Sketcher.Constraint("DistanceX", 14, 2, 14, 1, Q("4.6 mm")))
sketch4.addConstraint(Sketcher.Constraint("DistanceX", -1, 1, 3, 3, Q("100 mm")))
sketch4.addConstraint(Sketcher.Constraint("DistanceY", 5, 2, 3, 3, Q("2 mm")))
sketch4.addConstraint(Sketcher.Constraint("DistanceY", 0, 1, 0, 2, Q("3.55 mm")))
sketch4.addConstraint(Sketcher.Constraint("DistanceY", 5, 2, 5, 1, Q("0.25 mm")))
sketch4.addConstraint(Sketcher.Constraint("DistanceY", 15, 1, 15, 2, Q("13.78 mm")))
sketch4.addConstraint(Sketcher.Constraint("DistanceX", -1, 1, 4, 2, Q("103.3 mm")))
sketch4.addConstraint(Sketcher.Constraint("DistanceY", -1, 1, 13, 3, Q("59.61 mm")))
sketch4.addConstraint(Sketcher.Constraint("DistanceY", 6, 2, 6, 1, Q("15.1135 mm")))
sketch4.addConstraint(Sketcher.Constraint("DistanceX", 1, 1, 1, 2, Q("41.72441 mm")))
pocket2 = body.newObject("PartDesign::Pocket", "Pocket001")
pocket2.Profile = sketch4
pocket2.Type = "ThroughAll"
pocket2.Midplane = True

# Sketch on XZ plane
sketch5 = body.newObject("Sketcher::SketchObject", "Sketch004")
sketch5.AttachmentSupport = (doc.getObject("XZ_Plane"), [""])
sketch5.MapMode = "FlatFace"
sketch5.AttachmentOffset = App.Placement(V(0, 0, -2.5), App.Rotation())
add_polygon(sketch5, [(20, 62), (20, 74), (50, 74), (50, 62)])  # lines 0-3
sketch5.addConstraint(Sketcher.Constraint("Vertical", 0))
sketch5.addConstraint(Sketcher.Constraint("Horizontal", 1))
sketch5.addConstraint(Sketcher.Constraint("Vertical", 2))
sketch5.addConstraint(Sketcher.Constraint("Horizontal", 3))
sketch5.addConstraint(Sketcher.Constraint("DistanceX", 1, 1, 1, 2, Q("30 mm")))
sketch5.addConstraint(Sketcher.Constraint("DistanceY", 0, 1, 0, 2, Q("12 mm")))
sketch5.addConstraint(Sketcher.Constraint("DistanceY", -1, 1, 0, 2, Q("74.5 mm")))
sketch5.addConstraint(Sketcher.Constraint("DistanceX", -1, 1, 0, 2, Q("19.67559 mm")))
pocket3 = body.newObject("PartDesign::Pocket", "Pocket002")
pocket3.Profile = sketch5
pocket3.Type = "ThroughAll"
pocket3.Midplane = True

doc.recompute()
